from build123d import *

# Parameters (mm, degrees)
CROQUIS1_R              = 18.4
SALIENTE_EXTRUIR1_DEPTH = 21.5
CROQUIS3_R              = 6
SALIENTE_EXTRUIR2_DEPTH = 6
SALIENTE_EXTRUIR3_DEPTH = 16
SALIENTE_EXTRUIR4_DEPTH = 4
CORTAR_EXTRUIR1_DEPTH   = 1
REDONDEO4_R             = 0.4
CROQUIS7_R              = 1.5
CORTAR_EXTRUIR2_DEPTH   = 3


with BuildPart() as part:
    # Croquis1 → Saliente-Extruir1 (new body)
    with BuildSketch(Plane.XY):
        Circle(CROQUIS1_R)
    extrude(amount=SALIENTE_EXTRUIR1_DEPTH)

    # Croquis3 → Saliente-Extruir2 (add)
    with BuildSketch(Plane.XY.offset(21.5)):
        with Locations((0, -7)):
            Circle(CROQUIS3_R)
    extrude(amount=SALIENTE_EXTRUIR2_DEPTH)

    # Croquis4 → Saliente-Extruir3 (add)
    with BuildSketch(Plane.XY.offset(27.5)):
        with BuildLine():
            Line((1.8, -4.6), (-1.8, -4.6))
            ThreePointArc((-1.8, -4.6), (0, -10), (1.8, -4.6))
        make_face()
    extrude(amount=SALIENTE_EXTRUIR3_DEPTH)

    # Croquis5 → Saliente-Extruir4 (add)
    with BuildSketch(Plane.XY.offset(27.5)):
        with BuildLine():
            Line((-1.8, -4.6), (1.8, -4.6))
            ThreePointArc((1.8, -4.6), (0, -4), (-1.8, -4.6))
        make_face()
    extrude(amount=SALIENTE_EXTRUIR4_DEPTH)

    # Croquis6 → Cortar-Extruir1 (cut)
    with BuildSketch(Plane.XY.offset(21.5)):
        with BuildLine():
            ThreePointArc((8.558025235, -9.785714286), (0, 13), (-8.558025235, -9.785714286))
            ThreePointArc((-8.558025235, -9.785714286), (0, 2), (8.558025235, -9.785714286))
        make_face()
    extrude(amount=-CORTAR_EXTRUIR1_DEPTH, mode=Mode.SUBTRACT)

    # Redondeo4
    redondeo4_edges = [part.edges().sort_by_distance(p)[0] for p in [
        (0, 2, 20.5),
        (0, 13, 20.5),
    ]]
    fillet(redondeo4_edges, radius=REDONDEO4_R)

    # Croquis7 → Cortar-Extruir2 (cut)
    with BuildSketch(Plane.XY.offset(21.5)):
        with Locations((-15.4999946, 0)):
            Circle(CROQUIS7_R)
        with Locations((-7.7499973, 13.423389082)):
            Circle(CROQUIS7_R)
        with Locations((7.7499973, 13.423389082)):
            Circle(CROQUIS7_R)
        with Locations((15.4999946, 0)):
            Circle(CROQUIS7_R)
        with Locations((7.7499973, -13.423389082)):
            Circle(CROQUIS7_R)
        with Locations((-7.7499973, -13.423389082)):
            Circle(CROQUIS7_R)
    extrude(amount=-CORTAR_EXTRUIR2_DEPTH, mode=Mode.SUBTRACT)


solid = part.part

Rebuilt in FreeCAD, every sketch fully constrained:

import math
import FreeCAD as App
import Part
import Sketcher
Q = App.Units.Quantity


def edges_at(feature, points):
    """Names of the edges that pass closest to the given points."""
    edges = feature.Shape.Edges
    near = lambda p: min(range(len(edges)), key=lambda i: edges[i].distToShape(Part.Vertex(*p))[0])
    return sorted({f"Edge{near(p) + 1}" for p in points})

doc = App.newDocument("Part")
body = doc.addObject("PartDesign::Body", "Body")

# Sketch on XY plane
sketch1 = body.newObject("Sketcher::SketchObject", "Sketch")
sketch1.AttachmentSupport = (doc.getObject("XY_Plane"), [""])
sketch1.MapMode = "FlatFace"
sketch1.addGeometry(Part.Circle(App.Vector(0, 0, 0), App.Vector(0, 0, 1), 18), False)
sketch1.addConstraint(Sketcher.Constraint("Coincident", 0, 3, -1, 1))
sketch1.addConstraint(Sketcher.Constraint("Diameter", 0, Q("36.8 mm")))
pad1 = body.newObject("PartDesign::Pad", "Pad")
pad1.Profile = sketch1
pad1.Length = 21.5

# Sketch on XY plane
sketch2 = body.newObject("Sketcher::SketchObject", "Sketch001")
sketch2.AttachmentSupport = (doc.getObject("XY_Plane"), [""])
sketch2.MapMode = "FlatFace"
sketch2.AttachmentOffset = App.Placement(App.Vector(0, 0, 21.5), App.Rotation())
sketch2.addGeometry(Part.Circle(App.Vector(0, -7, 0), App.Vector(0, 0, 1), 6), False)
sketch2.addConstraint(Sketcher.Constraint("PointOnObject", 0, 3, -2))
sketch2.addConstraint(Sketcher.Constraint("Diameter", 0, Q("12 mm")))
sketch2.addConstraint(Sketcher.Constraint("DistanceY", 0, 3, -1, 1, Q("7 mm")))
pad2 = body.newObject("PartDesign::Pad", "Pad001")
pad2.Profile = sketch2
pad2.Length = 6

# Sketch on XY plane
sketch3 = body.newObject("Sketcher::SketchObject", "Sketch002")
sketch3.AttachmentSupport = (doc.getObject("XY_Plane"), [""])
sketch3.MapMode = "FlatFace"
sketch3.AttachmentOffset = App.Placement(App.Vector(0, 0, 27.5), App.Rotation())
sketch3.addGeometry(Part.LineSegment(App.Vector(1.8, -4.6, 0), App.Vector(-1.8, -4.6, 0)), False)
sketch3.addGeometry(Part.ArcOfCircle(Part.Circle(App.Vector(0, -7, 0), App.Vector(0, 0, 1), 3), math.radians(127), math.radians(413)), False)
sketch3.addConstraint(Sketcher.Constraint("Coincident", 0, 1, 1, 2))
sketch3.addConstraint(Sketcher.Constraint("Coincident", 1, 1, 0, 2))
sketch3.addConstraint(Sketcher.Constraint("Horizontal", 0))
sketch3.addConstraint(Sketcher.Constraint("PointOnObject", 1, 3, -2))
sketch3.addConstraint(Sketcher.Constraint("Radius", 1, Q("3 mm")))
sketch3.addConstraint(Sketcher.Constraint("DistanceX", 0, 2, 0, 1, Q("3.6 mm")))
sketch3.addConstraint(Sketcher.Constraint("DistanceY", 1, 3, -1, 1, Q("7 mm")))
pad3 = body.newObject("PartDesign::Pad", "Pad002")
pad3.Profile = sketch3
pad3.Length = 16

# Sketch on XY plane
sketch4 = body.newObject("Sketcher::SketchObject", "Sketch003")
sketch4.AttachmentSupport = (doc.getObject("XY_Plane"), [""])
sketch4.MapMode = "FlatFace"
sketch4.AttachmentOffset = App.Placement(App.Vector(0, 0, 27.5), App.Rotation())
sketch4.addGeometry(Part.LineSegment(App.Vector(-1.8, -4.6, 0), App.Vector(1.8, -4.6, 0)), False)
sketch4.addGeometry(Part.ArcOfCircle(Part.Circle(App.Vector(0, -7, 0), App.Vector(0, 0, 1), 3), math.radians(53), math.radians(127)), False)
sketch4.addConstraint(Sketcher.Constraint("Coincident", 0, 1, 1, 2))
sketch4.addConstraint(Sketcher.Constraint("Coincident", 1, 1, 0, 2))
sketch4.addConstraint(Sketcher.Constraint("Horizontal", 0))
sketch4.addConstraint(Sketcher.Constraint("PointOnObject", 1, 3, -2))
sketch4.addConstraint(Sketcher.Constraint("Radius", 1, Q("3 mm")))
sketch4.addConstraint(Sketcher.Constraint("DistanceX", 0, 1, 0, 2, Q("3.6 mm")))
sketch4.addConstraint(Sketcher.Constraint("DistanceY", 1, 3, -1, 1, Q("7 mm")))
pad4 = body.newObject("PartDesign::Pad", "Pad003")
pad4.Profile = sketch4
pad4.Length = 4

# Sketch on XY plane
sketch5 = body.newObject("Sketcher::SketchObject", "Sketch004")
sketch5.AttachmentSupport = (doc.getObject("XY_Plane"), [""])
sketch5.MapMode = "FlatFace"
sketch5.AttachmentOffset = App.Placement(App.Vector(0, 0, 21.5), App.Rotation())
sketch5.addGeometry(Part.ArcOfCircle(Part.Circle(App.Vector(0, 0, 0), App.Vector(0, 0, 1), 13), math.radians(-49), math.radians(229)), False)
sketch5.addGeometry(Part.ArcOfCircle(Part.Circle(App.Vector(0, -7, 0), App.Vector(0, 0, 1), 9), math.radians(-18), math.radians(198)), False)
sketch5.addConstraint(Sketcher.Constraint("Coincident", 0, 1, 1, 1))
sketch5.addConstraint(Sketcher.Constraint("Coincident", 1, 2, 0, 2))
sketch5.addConstraint(Sketcher.Constraint("Coincident", 0, 3, -1, 1))
sketch5.addConstraint(Sketcher.Constraint("PointOnObject", 1, 3, -2))
sketch5.addConstraint(Sketcher.Constraint("Radius", 0, Q("13 mm")))
sketch5.addConstraint(Sketcher.Constraint("Radius", 1, Q("9 mm")))
sketch5.addConstraint(Sketcher.Constraint("DistanceY", 1, 3, -1, 1, Q("7 mm")))
pocket1 = body.newObject("PartDesign::Pocket", "Pocket")
pocket1.Profile = sketch5
pocket1.Length = 1
doc.recompute()

fillet = body.newObject("PartDesign::Fillet", "Fillet")
fillet.Base = (pocket1, edges_at(pocket1, [(0, 2, 20.5), (0, 13, 20.5)]))
fillet.Radius = 0.4

# Sketch on XY plane
sketch6 = body.newObject("Sketcher::SketchObject", "Sketch005")
sketch6.AttachmentSupport = (doc.getObject("XY_Plane"), [""])
sketch6.MapMode = "FlatFace"
sketch6.AttachmentOffset = App.Placement(App.Vector(0, 0, 21.5), App.Rotation())
sketch6.addGeometry(Part.Circle(App.Vector(-15.5, 0, 0), App.Vector(0, 0, 1), 1.5), False)
sketch6.addGeometry(Part.Circle(App.Vector(-7.7, 13.4, 0), App.Vector(0, 0, 1), 1.5), False)
sketch6.addGeometry(Part.Circle(App.Vector(7.7, 13.4, 0), App.Vector(0, 0, 1), 1.5), False)
sketch6.addGeometry(Part.Circle(App.Vector(15.5, 0, 0), App.Vector(0, 0, 1), 1.5), False)
sketch6.addGeometry(Part.Circle(App.Vector(7.7, -13.4, 0), App.Vector(0, 0, 1), 1.5), False)
sketch6.addGeometry(Part.Circle(App.Vector(-7.7, -13.4, 0), App.Vector(0, 0, 1), 1.5), False)
sketch6.addConstraint(Sketcher.Constraint("Equal", 0, 1))
sketch6.addConstraint(Sketcher.Constraint("Equal", 1, 2))
sketch6.addConstraint(Sketcher.Constraint("Equal", 2, 3))
sketch6.addConstraint(Sketcher.Constraint("Equal", 3, 4))
sketch6.addConstraint(Sketcher.Constraint("Equal", 4, 5))
sketch6.addConstraint(Sketcher.Constraint("Symmetric", 0, 3, 3, 3, -1, 1))
sketch6.addConstraint(Sketcher.Constraint("Symmetric", 1, 3, 4, 3, -1, 1))
sketch6.addConstraint(Sketcher.Constraint("Symmetric", 2, 3, 5, 3, -1, 1))
sketch6.addConstraint(Sketcher.Constraint("Symmetric", 1, 3, 2, 3, -2))
sketch6.addConstraint(Sketcher.Constraint("PointOnObject", 0, 3, -1))
sketch6.addConstraint(Sketcher.Constraint("Diameter", 0, Q("3 mm")))
sketch6.addConstraint(Sketcher.Constraint("DistanceY", -1, 1, 1, 3, Q("13.423389 mm")))
sketch6.addConstraint(Sketcher.Constraint("DistanceX", 0, 3, 2, 3, Q("23.249992 mm")))
sketch6.addConstraint(Sketcher.Constraint("DistanceX", 0, 3, 3, 3, Q("30.999989 mm")))
pocket2 = body.newObject("PartDesign::Pocket", "Pocket001")
pocket2.Profile = sketch6
pocket2.Length = 3

doc.recompute()
